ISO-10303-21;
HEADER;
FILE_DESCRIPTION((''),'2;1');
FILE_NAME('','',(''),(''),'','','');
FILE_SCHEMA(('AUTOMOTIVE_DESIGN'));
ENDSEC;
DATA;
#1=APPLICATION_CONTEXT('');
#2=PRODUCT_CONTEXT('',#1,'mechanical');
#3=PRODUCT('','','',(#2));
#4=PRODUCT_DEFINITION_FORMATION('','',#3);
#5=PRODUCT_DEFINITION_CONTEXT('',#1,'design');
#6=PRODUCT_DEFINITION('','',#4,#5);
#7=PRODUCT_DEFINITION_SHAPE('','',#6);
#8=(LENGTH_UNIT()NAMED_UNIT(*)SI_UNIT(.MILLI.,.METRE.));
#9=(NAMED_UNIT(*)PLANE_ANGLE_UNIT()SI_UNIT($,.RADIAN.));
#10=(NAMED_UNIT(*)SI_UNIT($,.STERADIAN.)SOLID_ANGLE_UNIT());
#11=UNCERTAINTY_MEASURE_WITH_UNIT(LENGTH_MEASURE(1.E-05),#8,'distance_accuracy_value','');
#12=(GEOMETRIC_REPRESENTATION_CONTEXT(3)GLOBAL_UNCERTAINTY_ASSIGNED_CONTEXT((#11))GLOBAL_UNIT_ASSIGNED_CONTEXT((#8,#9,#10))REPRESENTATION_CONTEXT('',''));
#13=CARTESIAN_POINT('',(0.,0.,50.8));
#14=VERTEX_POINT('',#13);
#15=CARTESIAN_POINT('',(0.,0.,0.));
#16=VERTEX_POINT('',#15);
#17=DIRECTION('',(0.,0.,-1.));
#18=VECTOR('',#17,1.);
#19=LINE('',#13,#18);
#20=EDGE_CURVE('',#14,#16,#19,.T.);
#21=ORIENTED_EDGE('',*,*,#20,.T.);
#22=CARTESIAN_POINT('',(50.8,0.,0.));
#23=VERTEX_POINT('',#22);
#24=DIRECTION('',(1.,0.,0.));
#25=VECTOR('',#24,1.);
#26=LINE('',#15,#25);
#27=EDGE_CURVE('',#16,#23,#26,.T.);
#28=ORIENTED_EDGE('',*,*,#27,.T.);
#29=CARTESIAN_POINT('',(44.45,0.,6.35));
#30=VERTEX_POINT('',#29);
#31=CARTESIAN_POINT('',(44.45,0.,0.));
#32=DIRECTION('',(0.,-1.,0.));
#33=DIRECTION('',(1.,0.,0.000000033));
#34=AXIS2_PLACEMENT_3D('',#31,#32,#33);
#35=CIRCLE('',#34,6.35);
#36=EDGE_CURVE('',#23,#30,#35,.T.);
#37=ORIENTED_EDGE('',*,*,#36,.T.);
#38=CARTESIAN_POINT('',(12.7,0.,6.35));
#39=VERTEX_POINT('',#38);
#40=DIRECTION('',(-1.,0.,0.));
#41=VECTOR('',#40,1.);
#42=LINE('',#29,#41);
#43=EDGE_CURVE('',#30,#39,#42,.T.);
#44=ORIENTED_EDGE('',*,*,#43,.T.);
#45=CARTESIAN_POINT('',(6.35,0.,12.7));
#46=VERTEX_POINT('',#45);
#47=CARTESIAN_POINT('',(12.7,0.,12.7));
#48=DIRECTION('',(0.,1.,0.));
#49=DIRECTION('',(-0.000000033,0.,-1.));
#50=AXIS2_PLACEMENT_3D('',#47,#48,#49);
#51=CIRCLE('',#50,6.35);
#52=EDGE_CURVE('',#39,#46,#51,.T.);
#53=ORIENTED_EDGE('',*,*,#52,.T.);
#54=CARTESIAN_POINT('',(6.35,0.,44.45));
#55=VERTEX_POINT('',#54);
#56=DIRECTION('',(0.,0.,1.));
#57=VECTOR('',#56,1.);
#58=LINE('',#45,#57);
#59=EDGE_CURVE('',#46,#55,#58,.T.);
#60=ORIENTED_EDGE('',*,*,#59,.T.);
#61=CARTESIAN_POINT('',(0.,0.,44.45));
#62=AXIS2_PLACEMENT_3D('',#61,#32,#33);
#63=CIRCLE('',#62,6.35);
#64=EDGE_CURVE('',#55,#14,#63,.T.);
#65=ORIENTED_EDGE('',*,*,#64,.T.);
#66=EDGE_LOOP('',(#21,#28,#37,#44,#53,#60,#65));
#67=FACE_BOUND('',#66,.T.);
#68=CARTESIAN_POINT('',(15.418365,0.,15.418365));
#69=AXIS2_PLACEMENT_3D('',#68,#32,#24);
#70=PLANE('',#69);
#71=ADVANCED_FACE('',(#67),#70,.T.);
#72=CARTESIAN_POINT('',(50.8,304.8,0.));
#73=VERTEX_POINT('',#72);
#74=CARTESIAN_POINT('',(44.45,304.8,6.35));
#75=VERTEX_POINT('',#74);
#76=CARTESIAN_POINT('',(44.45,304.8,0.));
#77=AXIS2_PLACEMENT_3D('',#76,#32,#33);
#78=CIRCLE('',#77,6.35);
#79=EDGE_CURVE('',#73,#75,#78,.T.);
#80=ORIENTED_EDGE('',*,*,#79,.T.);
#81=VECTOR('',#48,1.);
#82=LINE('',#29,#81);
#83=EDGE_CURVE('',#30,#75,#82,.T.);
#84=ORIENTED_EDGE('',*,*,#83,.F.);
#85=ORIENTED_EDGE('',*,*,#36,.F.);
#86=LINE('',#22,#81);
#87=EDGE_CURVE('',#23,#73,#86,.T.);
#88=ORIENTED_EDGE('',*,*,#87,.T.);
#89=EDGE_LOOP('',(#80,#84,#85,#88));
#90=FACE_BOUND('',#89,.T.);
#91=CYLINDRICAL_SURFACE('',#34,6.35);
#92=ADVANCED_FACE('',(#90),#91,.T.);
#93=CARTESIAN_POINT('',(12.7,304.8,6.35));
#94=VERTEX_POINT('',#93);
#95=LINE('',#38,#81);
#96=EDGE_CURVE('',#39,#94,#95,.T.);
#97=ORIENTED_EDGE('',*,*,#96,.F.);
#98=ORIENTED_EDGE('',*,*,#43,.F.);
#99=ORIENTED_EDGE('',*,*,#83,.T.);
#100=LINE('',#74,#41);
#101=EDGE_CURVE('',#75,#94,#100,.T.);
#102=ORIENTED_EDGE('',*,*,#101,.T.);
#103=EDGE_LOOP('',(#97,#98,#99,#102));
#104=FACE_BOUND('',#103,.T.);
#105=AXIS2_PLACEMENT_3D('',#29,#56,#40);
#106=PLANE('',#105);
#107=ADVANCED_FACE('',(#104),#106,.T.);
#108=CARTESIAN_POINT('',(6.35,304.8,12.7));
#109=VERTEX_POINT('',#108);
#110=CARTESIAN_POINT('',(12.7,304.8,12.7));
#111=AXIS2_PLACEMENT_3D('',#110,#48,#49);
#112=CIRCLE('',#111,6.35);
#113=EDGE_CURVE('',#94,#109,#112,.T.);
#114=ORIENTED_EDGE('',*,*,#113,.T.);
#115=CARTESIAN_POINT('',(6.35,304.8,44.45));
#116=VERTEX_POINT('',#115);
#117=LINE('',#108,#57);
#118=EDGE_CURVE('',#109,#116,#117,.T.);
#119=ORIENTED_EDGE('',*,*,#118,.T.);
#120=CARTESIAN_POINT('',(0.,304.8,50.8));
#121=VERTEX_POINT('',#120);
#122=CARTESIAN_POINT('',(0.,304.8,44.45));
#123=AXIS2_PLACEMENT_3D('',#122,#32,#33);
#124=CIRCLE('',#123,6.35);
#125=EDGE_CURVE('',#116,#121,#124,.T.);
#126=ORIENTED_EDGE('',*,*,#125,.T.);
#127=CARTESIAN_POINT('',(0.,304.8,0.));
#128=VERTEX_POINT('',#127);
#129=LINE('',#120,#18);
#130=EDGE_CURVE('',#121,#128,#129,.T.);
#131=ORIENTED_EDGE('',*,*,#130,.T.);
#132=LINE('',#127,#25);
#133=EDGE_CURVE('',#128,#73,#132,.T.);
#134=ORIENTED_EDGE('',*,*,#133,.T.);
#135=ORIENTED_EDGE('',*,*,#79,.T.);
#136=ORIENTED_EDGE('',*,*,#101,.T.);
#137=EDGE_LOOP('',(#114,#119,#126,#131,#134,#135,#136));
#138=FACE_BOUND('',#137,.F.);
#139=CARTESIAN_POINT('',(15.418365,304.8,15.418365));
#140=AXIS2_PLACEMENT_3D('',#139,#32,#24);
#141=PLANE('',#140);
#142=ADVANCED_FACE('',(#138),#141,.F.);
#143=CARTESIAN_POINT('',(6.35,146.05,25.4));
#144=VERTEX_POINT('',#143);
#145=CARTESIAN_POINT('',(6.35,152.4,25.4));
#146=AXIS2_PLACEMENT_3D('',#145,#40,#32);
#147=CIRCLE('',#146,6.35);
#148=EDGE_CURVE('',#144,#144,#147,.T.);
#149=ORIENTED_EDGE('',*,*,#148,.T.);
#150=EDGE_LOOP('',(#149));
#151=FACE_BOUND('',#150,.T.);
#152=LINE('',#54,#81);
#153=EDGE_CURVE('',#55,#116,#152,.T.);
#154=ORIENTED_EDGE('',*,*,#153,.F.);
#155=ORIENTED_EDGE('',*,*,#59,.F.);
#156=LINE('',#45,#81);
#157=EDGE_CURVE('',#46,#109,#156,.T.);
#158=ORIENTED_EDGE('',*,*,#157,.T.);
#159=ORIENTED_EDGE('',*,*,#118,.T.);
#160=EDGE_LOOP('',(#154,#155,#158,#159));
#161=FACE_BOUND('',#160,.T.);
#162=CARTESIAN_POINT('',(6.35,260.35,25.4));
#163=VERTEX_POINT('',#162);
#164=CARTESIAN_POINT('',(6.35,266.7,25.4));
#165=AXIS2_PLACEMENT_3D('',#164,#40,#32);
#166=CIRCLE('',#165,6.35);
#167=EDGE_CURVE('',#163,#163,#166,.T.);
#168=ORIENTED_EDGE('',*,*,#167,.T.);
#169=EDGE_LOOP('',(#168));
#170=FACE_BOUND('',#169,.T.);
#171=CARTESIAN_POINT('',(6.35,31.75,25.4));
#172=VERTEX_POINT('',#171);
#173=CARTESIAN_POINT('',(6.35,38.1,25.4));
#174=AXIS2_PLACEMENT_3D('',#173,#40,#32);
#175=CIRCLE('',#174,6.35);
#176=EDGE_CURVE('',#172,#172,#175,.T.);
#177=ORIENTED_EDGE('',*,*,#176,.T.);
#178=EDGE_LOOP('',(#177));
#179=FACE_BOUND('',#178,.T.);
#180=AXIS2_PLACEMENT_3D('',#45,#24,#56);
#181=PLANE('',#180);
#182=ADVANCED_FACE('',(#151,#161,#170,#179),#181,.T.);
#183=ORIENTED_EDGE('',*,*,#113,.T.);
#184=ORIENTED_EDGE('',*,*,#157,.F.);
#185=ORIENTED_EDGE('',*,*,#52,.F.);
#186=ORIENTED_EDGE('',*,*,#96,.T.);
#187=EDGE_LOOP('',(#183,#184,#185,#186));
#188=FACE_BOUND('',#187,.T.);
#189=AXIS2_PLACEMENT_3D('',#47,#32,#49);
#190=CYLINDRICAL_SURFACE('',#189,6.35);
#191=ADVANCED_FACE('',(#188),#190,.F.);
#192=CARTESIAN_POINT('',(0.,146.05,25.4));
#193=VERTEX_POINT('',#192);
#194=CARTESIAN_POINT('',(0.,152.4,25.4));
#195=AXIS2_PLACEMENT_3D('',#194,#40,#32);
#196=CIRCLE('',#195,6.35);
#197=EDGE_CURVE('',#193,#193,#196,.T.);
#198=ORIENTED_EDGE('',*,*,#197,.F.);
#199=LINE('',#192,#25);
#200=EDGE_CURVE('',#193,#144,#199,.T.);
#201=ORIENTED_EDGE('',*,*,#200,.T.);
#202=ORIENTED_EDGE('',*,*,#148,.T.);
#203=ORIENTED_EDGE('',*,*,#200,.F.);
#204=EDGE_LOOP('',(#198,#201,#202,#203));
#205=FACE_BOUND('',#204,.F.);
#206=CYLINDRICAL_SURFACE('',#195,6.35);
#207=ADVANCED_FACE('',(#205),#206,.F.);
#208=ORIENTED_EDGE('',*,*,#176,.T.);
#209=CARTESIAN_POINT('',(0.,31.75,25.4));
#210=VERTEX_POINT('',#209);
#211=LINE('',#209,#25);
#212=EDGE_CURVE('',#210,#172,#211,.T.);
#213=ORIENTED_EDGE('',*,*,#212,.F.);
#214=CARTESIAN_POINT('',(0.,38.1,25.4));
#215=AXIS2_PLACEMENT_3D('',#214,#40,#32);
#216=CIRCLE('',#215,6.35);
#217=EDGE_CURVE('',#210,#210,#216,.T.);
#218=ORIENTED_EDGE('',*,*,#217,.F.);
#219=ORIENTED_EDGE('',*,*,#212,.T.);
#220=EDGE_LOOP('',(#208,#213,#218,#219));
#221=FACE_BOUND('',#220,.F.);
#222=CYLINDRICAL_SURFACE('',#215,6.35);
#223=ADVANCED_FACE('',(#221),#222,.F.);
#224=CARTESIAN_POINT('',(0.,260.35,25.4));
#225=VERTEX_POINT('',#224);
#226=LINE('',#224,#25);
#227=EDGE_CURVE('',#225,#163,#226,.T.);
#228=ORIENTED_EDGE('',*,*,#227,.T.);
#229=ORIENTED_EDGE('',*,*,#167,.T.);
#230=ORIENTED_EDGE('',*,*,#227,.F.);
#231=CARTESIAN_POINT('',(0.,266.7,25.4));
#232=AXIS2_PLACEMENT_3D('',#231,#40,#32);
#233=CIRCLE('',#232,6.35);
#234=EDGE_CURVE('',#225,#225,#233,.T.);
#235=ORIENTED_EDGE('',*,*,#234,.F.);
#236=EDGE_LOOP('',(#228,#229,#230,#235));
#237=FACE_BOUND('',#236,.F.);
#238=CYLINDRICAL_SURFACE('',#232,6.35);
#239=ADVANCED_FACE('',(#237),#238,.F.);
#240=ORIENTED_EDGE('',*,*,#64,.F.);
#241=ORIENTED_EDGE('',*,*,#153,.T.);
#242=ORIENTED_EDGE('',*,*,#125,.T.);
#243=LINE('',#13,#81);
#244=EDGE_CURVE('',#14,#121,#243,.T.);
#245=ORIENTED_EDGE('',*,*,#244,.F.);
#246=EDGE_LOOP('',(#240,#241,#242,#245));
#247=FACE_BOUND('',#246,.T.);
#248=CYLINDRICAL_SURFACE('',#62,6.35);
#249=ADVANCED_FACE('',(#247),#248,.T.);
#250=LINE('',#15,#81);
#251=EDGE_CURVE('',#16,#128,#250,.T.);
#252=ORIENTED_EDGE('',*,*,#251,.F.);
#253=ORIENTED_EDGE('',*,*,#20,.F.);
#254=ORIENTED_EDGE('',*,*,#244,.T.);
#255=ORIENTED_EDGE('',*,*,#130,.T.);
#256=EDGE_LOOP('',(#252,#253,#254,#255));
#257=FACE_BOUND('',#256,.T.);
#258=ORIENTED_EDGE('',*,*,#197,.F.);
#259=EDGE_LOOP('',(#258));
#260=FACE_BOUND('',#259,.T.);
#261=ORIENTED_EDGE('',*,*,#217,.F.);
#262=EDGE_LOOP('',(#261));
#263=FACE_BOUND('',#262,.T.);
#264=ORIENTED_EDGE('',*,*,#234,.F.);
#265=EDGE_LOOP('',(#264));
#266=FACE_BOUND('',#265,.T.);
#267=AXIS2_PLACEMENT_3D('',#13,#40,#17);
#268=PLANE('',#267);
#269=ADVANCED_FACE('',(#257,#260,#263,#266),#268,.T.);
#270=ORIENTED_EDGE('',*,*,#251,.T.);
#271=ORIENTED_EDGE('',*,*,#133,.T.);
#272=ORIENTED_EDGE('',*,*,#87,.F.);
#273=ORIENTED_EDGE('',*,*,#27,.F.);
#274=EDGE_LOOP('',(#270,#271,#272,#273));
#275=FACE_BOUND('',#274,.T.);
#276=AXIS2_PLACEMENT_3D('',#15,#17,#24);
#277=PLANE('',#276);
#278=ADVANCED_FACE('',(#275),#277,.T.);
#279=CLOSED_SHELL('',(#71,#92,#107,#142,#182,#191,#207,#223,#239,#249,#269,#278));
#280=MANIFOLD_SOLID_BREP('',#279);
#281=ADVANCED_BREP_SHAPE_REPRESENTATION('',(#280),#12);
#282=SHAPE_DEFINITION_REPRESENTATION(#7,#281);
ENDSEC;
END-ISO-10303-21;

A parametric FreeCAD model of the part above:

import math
import FreeCAD as App
import Part
import Sketcher

V = App.Vector
Q = App.Units.Quantity

doc = App.newDocument("Part")
body = doc.addObject("PartDesign::Body", "Body")

sketch1 = doc.addObject("Sketcher::SketchObject", "Sketch")
body.addObject(sketch1)
sketch1.AttachmentSupport = (doc.XZ_Plane, [""])
sketch1.MapMode = "FlatFace"
sketch1.addGeometry([
    Part.LineSegment(V(0, 50.8, 0), V(0, 0, 0)),
    Part.LineSegment(V(0, 0, 0), V(50.8, 0, 0)),
    Part.ArcOfCircle(Part.Circle(V(44.45, 0, 0), V(0, 0, 1), 6.35), math.radians(0.000002), math.radians(89.999998)),
    Part.LineSegment(V(44.45, 6.35, 0), V(12.7, 6.35, 0)),
    Part.ArcOfCircle(Part.Circle(V(12.7, 12.7, 0), V(0, 0, 1), 6.35), math.radians(-179.999998), math.radians(-90.000002)),
    Part.LineSegment(V(6.35, 12.7, 0), V(6.35, 44.45, 0)),
    Part.ArcOfCircle(Part.Circle(V(0, 44.45, 0), V(0, 0, 1), 6.35), math.radians(0.000002), math.radians(89.999998)),
], False)
sketch1.addConstraint([
    Sketcher.Constraint("Coincident", 0, 2, 1, 1),
    Sketcher.Constraint("Coincident", 1, 2, 2, 1),
    Sketcher.Constraint("Tangent", 2, 2, 3, 1),
    Sketcher.Constraint("Tangent", 3, 2, 4, 2),
    Sketcher.Constraint("Tangent", 4, 1, 5, 1),
    Sketcher.Constraint("Tangent", 5, 2, 6, 1),
    Sketcher.Constraint("Coincident", 6, 2, 0, 1),
    Sketcher.Constraint("Vertical", 0),
    Sketcher.Constraint("Horizontal", 1),
    Sketcher.Constraint("Horizontal", 3),
    Sketcher.Constraint("Vertical", 5),
    Sketcher.Constraint("Coincident", 0, 2, -1, 1),
    Sketcher.Constraint("Equal", 2, 4),
    Sketcher.Constraint("Equal", 4, 6),
    Sketcher.Constraint("PointOnObject", 2, 3, -1),
    Sketcher.Constraint("PointOnObject", 6, 3, -2),
    Sketcher.Constraint("Equal", 1, 0),
    Sketcher.Constraint("DistanceX", 1, 1, 1, 2, Q("2 in")),
    Sketcher.Constraint("Radius", 2, Q("0.25 in")),
])
pad1 = doc.addObject("PartDesign::Pad", "Pad")
body.addObject(pad1)
pad1.Profile = sketch1
pad1.Length = Q("12 in")
pad1.Reversed = True

sketch2 = doc.addObject("Sketcher::SketchObject", "Sketch001")
body.addObject(sketch2)
sketch2.AttachmentSupport = (doc.YZ_Plane, [""])
sketch2.MapMode = "FlatFace"
sketch2.addGeometry(Part.Circle(V(38.1, 25.4, 0), V(0, 0, 1), 6.35), False)
sketch2.addConstraint([
    Sketcher.Constraint("Diameter", 0, Q("0.5 in")),
    Sketcher.Constraint("DistanceY", -1, 1, 0, 3, Q("1 in")),
    Sketcher.Constraint("DistanceX", -1, 1, 0, 3, Q("1.5 in")),
])
pocket1 = doc.addObject("PartDesign::Pocket", "Pocket")
body.addObject(pocket1)
pocket1.Profile = sketch2
pocket1.Length = Q("0.25 in")
pocket1.Reversed = True

sketch3 = doc.addObject("Sketcher::SketchObject", "Sketch002")
body.addObject(sketch3)
sketch3.AttachmentSupport = (doc.YZ_Plane, [""])
sketch3.MapMode = "FlatFace"
sketch3.addGeometry(Part.Circle(V(266.7, 25.4, 0), V(0, 0, 1), 6.35), False)
sketch3.addConstraint([
    Sketcher.Constraint("Diameter", 0, Q("0.5 in")),
    Sketcher.Constraint("DistanceY", -1, 1, 0, 3, Q("1 in")),
    Sketcher.Constraint("DistanceX", -1, 1, 0, 3, Q("10.5 in")),
])
pocket2 = doc.addObject("PartDesign::Pocket", "Pocket001")
body.addObject(pocket2)
pocket2.Profile = sketch3
pocket2.Length = Q("0.25 in")
pocket2.Reversed = True

sketch4 = doc.addObject("Sketcher::SketchObject", "Sketch003")
body.addObject(sketch4)
sketch4.AttachmentSupport = (doc.YZ_Plane, [""])
sketch4.MapMode = "FlatFace"
sketch4.addGeometry(Part.Circle(V(152.4, 25.4, 0), V(0, 0, 1), 6.35), False)
sketch4.addConstraint([
    Sketcher.Constraint("Diameter", 0, Q("0.5 in")),
    Sketcher.Constraint("DistanceX", -1, 1, 0, 3, Q("6 in")),
    Sketcher.Constraint("DistanceY", -1, 1, 0, 3, Q("1 in")),
])
pocket3 = doc.addObject("PartDesign::Pocket", "Pocket002")
body.addObject(pocket3)
pocket3.Profile = sketch4
pocket3.Length = Q("0.25 in")
pocket3.Reversed = True

doc.recompute()
